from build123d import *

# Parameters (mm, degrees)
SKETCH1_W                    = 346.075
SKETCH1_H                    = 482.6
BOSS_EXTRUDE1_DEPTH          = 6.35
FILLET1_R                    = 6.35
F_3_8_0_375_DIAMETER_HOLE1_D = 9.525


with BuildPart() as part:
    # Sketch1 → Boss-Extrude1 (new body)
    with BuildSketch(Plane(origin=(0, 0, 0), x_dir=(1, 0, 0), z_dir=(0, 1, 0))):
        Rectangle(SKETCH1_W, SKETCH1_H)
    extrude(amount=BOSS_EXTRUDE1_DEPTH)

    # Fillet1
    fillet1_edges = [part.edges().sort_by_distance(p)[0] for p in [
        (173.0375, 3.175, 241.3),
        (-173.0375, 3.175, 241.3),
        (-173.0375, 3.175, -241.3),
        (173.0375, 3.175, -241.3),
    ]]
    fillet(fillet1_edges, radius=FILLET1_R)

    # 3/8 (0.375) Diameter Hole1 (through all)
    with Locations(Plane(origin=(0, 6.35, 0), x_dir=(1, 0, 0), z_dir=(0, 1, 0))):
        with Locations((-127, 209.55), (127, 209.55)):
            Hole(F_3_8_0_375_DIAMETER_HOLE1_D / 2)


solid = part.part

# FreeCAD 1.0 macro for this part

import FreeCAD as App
import Part
import Sketcher
Q = App.Units.Quantity


def edges_at(feature, points):
    """Names of the edges that pass closest to the given points."""
    edges = feature.Shape.Edges
    near = lambda p: min(range(len(edges)), key=lambda i: edges[i].distToShape(Part.Vertex(*p))[0])
    return sorted({f"Edge{near(p) + 1}" for p in points})


def add_polygon(sketch, points):
    """Adds a closed chain of lines whose ends are joined by coincident constraints."""
    first, n = sketch.GeometryCount, len(points)
    for a, b in zip(points, points[1:] + points[:1]):
        sketch.addGeometry(Part.LineSegment(App.Vector(*a, 0), App.Vector(*b, 0)), False)
    for i in range(n):
        sketch.addConstraint(Sketcher.Constraint("Coincident", first + i, 2, first + (i + 1) % n, 1))

doc = App.newDocument("Part")
body = doc.addObject("PartDesign::Body", "Body")

# Sketch on XZ plane
sketch1 = doc.addObject("Sketcher::SketchObject", "Sketch")
body.addObject(sketch1)
sketch1.AttachmentSupport = (doc.XZ_Plane, [""])
sketch1.MapMode = "FlatFace"
add_polygon(sketch1, [(-173.0375, -241.3), (-173.0375, 241.3), (173.0375, 241.3), (173.0375, -241.3)])  # lines 0-3
sketch1.addConstraint(Sketcher.Constraint("Vertical", 0))
sketch1.addConstraint(Sketcher.Constraint("Horizontal", 1))
sketch1.addConstraint(Sketcher.Constraint("Vertical", 2))
sketch1.addConstraint(Sketcher.Constraint("Horizontal", 3))
sketch1.addConstraint(Sketcher.Constraint("Symmetric", 0, 2, 2, 2, -1, 1))
sketch1.addConstraint(Sketcher.Constraint("DistanceY", 0, 1, 0, 2, Q("19 in")))
sketch1.addConstraint(Sketcher.Constraint("DistanceX", 1, 1, 1, 2, Q("13.625 in")))
pad1 = doc.addObject("PartDesign::Pad", "Pad")
body.addObject(pad1)
pad1.Profile = sketch1
pad1.Length = Q("0.25 in")
pad1.Reversed = True
doc.recompute()

fillet = doc.addObject("PartDesign::Fillet", "Fillet")
body.addObject(fillet)
fillet.Base = (pad1, edges_at(pad1, [
    (173.037, 3.175, 241.3),
    (-173.037, 3.175, 241.3),
    (-173.037, 3.175, -241.3),
    (173.037, 3.175, -241.3),
]))
fillet.Radius = Q("0.25 in")

# Sketch on XZ plane
sketch2 = doc.addObject("Sketcher::SketchObject", "Sketch001")
body.addObject(sketch2)
sketch2.AttachmentSupport = (doc.XZ_Plane, [""])
sketch2.MapMode = "FlatFace"
sketch2.AttachmentOffset = App.Placement(App.Vector(0, 0, -0.25 * 25.4), App.Rotation())
sketch2.addGeometry(Part.Circle(App.Vector(-127, -209.55, 0), App.Vector(0, 0, 1), 4.7625), False)
sketch2.addGeometry(Part.Circle(App.Vector(127, -209.55, 0), App.Vector(0, 0, 1), 4.7625), False)
sketch2.addConstraint(Sketcher.Constraint("Equal", 0, 1))
sketch2.addConstraint(Sketcher.Constraint("Symmetric", 0, 3, 1, 3, -2))
sketch2.addConstraint(Sketcher.Constraint("Diameter", 0, Q("0.375 in")))
sketch2.addConstraint(Sketcher.Constraint("DistanceX", 0, 3, -1, 1, Q("5 in")))
sketch2.addConstraint(Sketcher.Constraint("DistanceY", 0, 3, -1, 1, Q("8.25 in")))
doc.recompute()
hole = doc.addObject("PartDesign::Hole", "Hole")
body.addObject(hole)
hole.Profile = sketch2
hole.ThreadType = "None"
hole.Diameter = Q("0.375 in")
hole.DepthType = "ThroughAll"
hole.Reversed = True

doc.recompute()
